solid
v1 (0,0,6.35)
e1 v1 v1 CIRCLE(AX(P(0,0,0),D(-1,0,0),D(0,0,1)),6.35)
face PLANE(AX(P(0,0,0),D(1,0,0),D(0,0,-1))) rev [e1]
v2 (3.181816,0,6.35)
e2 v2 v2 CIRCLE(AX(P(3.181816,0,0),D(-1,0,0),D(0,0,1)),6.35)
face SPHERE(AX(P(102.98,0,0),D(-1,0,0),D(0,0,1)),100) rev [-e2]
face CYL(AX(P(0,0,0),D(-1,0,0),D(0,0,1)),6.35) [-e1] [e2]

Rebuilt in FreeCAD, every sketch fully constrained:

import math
import FreeCAD as App
import Part
import Sketcher
from FreeCAD import Vector
Q = App.Units.Quantity

doc = App.newDocument("Part")
body = doc.addObject("PartDesign::Body", "Body")

# Sketch on XZ plane
sketch1 = doc.addObject("Sketcher::SketchObject", "Sketch")
body.addObject(sketch1)
sketch1.AttachmentSupport = (doc.XZ_Plane, [""])
sketch1.MapMode = "FlatFace"
sketch1.addGeometry(Part.LineSegment(Vector(0, 0, 0), Vector(3, 0, 0)), False)
sketch1.addGeometry(Part.ArcOfCircle(Part.Circle(Vector(103, 0, 0), Vector(0, 0, 1), 100), math.radians(-180), math.radians(-176.36)), False)
sketch1.addGeometry(Part.LineSegment(Vector(3.2, -6.3, 0), Vector(0, -6.3, 0)), False)
sketch1.addGeometry(Part.LineSegment(Vector(0, -6.3, 0), Vector(0, 0, 0)), False)
sketch1.addConstraint(Sketcher.Constraint("Coincident", 0, 2, 1, 1))
sketch1.addConstraint(Sketcher.Constraint("Coincident", 1, 2, 2, 1))
sketch1.addConstraint(Sketcher.Constraint("Coincident", 2, 2, 3, 1))
sketch1.addConstraint(Sketcher.Constraint("Coincident", 3, 2, 0, 1))
sketch1.addConstraint(Sketcher.Constraint("Horizontal", 0))
sketch1.addConstraint(Sketcher.Constraint("Horizontal", 2))
sketch1.addConstraint(Sketcher.Constraint("Vertical", 3))
sketch1.addConstraint(Sketcher.Constraint("Coincident", 3, 2, -1, 1))
sketch1.addConstraint(Sketcher.Constraint("PointOnObject", 1, 3, -1))
sketch1.addConstraint(Sketcher.Constraint("Radius", 1, Q("100 mm")))
sketch1.addConstraint(Sketcher.Constraint("DistanceX", 0, 1, 0, 2, Q("2.98 mm")))
sketch1.addConstraint(Sketcher.Constraint("DistanceY", 3, 1, 3, 2, Q("6.35 mm")))
revolution = doc.addObject("PartDesign::Revolution", "Revolution")
body.addObject(revolution)
revolution.Profile = sketch1
revolution.ReferenceAxis = (sketch1, ["H_Axis"])
revolution.Angle = 360

doc.recompute()
